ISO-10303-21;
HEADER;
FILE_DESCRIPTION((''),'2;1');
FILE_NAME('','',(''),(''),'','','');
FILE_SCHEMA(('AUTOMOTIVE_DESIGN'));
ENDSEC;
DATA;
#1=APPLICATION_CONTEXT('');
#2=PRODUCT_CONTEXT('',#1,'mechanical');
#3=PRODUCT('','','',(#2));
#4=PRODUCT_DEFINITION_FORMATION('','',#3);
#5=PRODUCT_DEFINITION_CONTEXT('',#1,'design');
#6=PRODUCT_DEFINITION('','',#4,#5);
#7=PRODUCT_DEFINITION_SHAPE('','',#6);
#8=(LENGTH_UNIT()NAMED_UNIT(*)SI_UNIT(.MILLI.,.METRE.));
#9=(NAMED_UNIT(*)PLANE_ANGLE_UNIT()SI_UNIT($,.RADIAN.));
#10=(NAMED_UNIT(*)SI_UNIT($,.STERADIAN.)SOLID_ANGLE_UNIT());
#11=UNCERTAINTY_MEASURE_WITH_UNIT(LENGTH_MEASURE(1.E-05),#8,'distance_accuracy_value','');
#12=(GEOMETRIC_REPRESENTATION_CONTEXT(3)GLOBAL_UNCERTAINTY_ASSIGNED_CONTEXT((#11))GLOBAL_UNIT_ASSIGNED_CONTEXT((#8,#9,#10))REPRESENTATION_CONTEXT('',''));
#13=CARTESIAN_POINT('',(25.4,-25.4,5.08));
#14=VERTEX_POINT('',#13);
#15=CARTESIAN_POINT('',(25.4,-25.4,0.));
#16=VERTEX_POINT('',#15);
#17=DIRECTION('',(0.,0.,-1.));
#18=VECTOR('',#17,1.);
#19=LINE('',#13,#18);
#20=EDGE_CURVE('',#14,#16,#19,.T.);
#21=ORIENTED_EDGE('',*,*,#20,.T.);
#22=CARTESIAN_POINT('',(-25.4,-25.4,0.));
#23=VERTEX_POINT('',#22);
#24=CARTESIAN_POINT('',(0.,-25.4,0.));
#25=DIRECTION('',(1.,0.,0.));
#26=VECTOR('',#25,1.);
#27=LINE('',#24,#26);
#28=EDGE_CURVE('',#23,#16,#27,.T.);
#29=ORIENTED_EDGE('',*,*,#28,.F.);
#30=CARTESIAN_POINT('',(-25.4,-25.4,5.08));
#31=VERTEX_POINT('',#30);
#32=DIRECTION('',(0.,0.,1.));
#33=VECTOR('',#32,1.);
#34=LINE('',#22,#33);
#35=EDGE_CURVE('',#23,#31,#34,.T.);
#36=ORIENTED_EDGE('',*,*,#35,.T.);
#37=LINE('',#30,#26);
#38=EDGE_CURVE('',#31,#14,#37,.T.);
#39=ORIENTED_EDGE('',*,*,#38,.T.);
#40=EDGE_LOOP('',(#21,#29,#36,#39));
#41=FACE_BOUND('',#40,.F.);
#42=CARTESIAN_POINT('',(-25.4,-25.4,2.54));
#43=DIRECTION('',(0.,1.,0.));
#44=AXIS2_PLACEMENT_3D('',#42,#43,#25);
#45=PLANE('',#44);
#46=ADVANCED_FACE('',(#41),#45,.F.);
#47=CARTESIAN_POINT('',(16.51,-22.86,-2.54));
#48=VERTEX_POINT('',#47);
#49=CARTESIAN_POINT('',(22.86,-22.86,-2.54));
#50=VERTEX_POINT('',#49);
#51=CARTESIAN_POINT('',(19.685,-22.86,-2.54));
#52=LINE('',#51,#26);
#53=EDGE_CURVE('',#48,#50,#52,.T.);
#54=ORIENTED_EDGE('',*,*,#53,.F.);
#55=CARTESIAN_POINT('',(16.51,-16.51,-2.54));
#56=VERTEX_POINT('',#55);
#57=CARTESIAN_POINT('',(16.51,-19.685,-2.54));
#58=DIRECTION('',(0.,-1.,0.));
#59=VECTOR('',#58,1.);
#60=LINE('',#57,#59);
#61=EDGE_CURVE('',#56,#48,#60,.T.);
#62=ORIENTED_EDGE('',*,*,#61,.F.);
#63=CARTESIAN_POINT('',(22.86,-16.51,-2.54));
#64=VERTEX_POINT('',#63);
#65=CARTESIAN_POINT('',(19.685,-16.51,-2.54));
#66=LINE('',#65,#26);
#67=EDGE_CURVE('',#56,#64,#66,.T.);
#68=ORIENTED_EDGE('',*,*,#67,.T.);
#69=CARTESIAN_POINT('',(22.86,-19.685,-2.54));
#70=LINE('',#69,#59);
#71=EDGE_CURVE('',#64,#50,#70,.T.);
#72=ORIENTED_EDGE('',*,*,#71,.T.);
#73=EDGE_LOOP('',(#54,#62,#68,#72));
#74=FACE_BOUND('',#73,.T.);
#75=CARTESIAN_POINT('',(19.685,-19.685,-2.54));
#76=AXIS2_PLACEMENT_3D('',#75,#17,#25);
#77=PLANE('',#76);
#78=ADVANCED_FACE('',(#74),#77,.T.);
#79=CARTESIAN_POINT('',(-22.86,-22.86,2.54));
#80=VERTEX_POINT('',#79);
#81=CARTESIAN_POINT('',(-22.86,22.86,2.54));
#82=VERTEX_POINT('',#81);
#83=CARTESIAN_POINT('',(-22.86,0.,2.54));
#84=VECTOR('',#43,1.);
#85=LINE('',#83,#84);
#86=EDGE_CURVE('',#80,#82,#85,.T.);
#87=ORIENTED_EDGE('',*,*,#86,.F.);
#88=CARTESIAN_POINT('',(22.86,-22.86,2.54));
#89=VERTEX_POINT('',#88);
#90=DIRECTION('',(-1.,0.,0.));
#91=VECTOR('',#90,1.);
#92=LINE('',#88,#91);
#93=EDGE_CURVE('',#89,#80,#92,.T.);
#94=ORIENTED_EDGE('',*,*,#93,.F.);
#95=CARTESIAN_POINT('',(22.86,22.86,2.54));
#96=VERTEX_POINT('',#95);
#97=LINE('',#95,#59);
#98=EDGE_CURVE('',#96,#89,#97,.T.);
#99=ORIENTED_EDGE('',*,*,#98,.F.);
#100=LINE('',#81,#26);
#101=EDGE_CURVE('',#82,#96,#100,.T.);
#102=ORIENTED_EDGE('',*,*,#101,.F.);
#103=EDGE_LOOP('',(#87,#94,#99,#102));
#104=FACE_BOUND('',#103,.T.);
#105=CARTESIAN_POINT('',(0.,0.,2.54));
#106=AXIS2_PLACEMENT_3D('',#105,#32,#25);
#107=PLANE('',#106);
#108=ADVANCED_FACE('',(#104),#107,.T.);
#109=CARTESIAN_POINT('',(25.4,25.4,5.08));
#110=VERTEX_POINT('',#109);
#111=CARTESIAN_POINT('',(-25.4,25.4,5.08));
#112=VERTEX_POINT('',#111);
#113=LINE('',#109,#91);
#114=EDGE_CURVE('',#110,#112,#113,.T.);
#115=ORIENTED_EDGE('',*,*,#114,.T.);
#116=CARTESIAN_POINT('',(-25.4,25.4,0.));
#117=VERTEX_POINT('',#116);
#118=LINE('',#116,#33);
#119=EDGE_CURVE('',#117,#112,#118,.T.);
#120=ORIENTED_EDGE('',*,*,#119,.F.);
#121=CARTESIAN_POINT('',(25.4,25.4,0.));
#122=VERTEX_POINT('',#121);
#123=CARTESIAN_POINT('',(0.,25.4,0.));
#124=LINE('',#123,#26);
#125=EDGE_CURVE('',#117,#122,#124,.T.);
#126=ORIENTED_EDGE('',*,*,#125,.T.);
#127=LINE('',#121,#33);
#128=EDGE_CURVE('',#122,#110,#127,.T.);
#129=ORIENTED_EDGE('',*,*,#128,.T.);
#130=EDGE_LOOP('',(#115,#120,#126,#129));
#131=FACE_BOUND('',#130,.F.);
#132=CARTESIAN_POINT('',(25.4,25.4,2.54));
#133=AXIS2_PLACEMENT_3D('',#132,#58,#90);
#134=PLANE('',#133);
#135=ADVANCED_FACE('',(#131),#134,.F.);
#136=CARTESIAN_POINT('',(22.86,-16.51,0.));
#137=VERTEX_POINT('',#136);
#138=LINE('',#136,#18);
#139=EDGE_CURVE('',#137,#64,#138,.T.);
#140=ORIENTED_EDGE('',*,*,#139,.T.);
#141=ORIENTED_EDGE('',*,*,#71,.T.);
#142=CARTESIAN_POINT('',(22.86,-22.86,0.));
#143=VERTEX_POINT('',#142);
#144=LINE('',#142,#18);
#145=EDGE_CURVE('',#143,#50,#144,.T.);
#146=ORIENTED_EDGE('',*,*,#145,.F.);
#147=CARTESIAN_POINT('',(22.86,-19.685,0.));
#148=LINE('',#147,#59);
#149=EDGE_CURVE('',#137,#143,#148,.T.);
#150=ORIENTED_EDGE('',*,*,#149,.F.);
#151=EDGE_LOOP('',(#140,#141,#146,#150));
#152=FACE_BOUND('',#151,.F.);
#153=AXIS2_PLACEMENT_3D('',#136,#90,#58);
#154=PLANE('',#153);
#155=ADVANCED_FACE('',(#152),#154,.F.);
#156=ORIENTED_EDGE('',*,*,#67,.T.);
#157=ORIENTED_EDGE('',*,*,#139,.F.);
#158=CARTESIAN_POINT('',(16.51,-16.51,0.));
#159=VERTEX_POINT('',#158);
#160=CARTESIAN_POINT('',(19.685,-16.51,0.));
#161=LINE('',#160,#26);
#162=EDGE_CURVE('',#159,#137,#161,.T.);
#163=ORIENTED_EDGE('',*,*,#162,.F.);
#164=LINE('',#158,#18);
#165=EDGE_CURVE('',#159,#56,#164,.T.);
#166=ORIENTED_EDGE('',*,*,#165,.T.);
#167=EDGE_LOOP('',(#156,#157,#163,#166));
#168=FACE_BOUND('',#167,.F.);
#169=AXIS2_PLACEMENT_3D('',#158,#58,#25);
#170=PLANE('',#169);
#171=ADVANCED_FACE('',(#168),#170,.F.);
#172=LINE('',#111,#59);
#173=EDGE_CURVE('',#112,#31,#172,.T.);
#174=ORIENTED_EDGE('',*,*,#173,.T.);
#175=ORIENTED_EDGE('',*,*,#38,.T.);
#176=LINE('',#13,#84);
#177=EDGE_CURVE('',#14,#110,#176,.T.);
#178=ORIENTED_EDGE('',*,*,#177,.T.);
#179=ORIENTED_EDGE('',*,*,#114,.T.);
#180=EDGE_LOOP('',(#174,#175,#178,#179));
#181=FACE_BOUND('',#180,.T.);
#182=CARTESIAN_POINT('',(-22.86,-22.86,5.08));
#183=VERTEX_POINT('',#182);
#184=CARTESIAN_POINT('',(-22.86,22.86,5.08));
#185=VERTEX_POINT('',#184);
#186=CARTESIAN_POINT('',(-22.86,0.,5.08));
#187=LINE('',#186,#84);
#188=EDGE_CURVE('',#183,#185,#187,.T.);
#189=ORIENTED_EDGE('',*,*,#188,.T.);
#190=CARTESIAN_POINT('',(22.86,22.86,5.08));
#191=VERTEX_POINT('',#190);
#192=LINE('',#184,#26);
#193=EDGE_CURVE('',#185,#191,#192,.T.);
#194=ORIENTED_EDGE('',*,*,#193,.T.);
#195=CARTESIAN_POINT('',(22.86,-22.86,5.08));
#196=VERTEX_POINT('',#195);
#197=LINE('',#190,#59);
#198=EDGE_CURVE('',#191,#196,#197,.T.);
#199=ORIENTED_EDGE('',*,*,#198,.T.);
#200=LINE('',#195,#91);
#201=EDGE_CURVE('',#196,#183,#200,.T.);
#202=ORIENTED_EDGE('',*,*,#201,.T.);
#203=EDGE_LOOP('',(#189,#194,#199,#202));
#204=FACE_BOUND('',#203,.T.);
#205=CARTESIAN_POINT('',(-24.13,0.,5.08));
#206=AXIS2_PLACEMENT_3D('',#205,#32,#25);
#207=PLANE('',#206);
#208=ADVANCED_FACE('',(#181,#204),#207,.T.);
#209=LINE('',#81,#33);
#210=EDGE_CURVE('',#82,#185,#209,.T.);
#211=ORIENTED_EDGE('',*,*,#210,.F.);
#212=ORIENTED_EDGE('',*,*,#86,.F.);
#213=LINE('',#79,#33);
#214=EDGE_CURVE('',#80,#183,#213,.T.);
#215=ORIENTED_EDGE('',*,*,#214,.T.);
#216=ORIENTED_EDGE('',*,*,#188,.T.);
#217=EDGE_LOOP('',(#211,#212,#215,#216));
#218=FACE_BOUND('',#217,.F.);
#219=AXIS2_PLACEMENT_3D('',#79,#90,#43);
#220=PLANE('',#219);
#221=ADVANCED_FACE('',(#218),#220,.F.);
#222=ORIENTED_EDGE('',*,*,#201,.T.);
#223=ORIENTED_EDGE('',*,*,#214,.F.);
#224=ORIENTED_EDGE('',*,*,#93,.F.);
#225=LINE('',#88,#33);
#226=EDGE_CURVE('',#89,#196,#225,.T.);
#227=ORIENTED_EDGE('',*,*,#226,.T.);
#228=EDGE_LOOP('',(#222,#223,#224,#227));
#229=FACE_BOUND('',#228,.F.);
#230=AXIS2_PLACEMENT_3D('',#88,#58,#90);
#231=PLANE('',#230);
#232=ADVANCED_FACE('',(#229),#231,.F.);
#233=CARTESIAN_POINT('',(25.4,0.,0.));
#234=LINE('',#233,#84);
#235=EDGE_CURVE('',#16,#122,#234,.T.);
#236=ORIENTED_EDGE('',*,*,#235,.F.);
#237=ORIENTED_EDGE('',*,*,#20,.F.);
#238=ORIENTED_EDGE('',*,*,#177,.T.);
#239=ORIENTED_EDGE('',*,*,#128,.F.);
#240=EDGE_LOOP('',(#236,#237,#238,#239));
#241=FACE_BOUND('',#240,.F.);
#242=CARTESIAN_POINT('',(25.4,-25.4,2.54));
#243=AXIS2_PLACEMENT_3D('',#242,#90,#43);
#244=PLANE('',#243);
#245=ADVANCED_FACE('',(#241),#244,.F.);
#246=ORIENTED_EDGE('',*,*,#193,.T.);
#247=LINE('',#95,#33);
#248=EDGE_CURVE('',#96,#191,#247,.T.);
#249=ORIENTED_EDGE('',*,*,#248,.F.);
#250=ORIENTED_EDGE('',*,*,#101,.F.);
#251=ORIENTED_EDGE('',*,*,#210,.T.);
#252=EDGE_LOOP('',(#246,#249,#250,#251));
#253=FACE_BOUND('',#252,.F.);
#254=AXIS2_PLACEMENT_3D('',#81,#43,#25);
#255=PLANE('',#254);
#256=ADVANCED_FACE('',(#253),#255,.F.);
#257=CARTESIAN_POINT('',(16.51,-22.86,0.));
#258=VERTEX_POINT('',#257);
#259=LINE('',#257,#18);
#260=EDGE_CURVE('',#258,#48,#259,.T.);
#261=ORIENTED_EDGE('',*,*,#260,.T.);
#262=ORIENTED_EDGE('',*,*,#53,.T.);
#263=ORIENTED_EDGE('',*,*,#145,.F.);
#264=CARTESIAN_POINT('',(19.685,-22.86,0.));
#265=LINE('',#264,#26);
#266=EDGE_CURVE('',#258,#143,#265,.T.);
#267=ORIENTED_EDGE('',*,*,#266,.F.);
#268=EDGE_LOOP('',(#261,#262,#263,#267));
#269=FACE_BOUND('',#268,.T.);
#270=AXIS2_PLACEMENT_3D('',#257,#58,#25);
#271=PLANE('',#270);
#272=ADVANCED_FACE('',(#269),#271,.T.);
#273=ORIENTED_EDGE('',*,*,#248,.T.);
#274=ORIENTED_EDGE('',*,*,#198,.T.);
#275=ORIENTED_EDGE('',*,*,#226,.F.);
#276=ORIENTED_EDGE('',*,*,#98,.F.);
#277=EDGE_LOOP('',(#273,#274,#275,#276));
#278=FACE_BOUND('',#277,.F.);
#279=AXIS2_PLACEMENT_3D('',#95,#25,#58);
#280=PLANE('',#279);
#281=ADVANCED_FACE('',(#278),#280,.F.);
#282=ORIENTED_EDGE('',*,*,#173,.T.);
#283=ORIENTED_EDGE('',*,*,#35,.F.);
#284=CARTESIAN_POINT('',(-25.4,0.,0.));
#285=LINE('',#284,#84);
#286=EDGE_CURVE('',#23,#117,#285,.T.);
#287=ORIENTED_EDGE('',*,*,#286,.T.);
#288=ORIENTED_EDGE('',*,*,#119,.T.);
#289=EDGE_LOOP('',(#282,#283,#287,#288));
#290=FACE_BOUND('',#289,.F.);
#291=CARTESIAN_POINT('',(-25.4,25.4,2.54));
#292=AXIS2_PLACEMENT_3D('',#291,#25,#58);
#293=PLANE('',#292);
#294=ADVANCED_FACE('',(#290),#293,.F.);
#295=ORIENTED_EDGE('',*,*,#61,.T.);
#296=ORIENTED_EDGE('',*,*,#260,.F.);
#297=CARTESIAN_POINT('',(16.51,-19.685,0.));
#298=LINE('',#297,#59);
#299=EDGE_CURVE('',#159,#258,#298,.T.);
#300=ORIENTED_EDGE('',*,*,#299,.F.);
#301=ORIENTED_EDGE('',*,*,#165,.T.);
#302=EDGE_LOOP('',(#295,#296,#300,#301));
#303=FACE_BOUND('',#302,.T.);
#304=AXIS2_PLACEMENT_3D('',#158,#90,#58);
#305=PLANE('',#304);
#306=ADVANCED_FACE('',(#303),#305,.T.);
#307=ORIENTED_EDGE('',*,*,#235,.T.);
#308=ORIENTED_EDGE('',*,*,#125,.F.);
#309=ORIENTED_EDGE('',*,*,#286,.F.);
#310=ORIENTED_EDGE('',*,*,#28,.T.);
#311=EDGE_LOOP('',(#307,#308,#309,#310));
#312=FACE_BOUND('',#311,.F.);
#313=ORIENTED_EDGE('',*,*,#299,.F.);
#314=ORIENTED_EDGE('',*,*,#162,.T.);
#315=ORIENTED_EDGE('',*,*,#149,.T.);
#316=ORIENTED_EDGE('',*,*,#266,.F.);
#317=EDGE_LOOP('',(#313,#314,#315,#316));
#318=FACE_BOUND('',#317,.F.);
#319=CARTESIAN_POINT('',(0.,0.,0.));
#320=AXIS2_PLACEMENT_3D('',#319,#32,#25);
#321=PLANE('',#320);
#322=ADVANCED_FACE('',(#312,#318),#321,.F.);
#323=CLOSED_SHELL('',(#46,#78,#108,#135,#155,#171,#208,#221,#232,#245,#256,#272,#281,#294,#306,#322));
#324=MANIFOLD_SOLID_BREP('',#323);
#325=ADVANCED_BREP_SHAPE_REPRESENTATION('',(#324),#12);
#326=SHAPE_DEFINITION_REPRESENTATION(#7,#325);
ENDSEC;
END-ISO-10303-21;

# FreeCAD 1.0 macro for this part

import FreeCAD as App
import Part
import Sketcher

V = App.Vector
Q = App.Units.Quantity

doc = App.newDocument("Part")
params = doc.addObject("Spreadsheet::Sheet", "Params")
for row, (alias, value) in enumerate([
    ("sketch1_width", "2 in"),
    ("pad1_length", "0.1 in"),
    ("sketch2_width", "2 in"),
    ("sketch2_width2", "1.8 in"),
    ("pad2_length", "0.1 in"),
    ("sketch3_width", "0.25 in"),
    ("pad3_length", "0.1 in"),
], start=1):
    params.set(f"A{row}", alias)
    params.set(f"B{row}", "=" + value)
    params.setAlias(f"B{row}", alias)

body = doc.addObject("PartDesign::Body", "Body")

sketch1 = body.newObject("Sketcher::SketchObject", "Sketch")
sketch1.AttachmentSupport = (doc.getObject("XY_Plane"), [""])
sketch1.MapMode = "FlatFace"
sketch1.addGeometry(Part.LineSegment(V(-25.4, 25.4, 0), V(-25.4, -25.4, 0)), False)
sketch1.addGeometry(Part.LineSegment(V(-25.4, -25.4, 0), V(25.4, -25.4, 0)), False)
sketch1.addGeometry(Part.LineSegment(V(25.4, -25.4, 0), V(25.4, 25.4, 0)), False)
sketch1.addGeometry(Part.LineSegment(V(25.4, 25.4, 0), V(-25.4, 25.4, 0)), False)
sketch1.addConstraint(Sketcher.Constraint("Coincident", 0, 2, 1, 1))
sketch1.addConstraint(Sketcher.Constraint("Coincident", 1, 2, 2, 1))
sketch1.addConstraint(Sketcher.Constraint("Coincident", 2, 2, 3, 1))
sketch1.addConstraint(Sketcher.Constraint("Coincident", 3, 2, 0, 1))
sketch1.addConstraint(Sketcher.Constraint("Vertical", 0))
sketch1.addConstraint(Sketcher.Constraint("Horizontal", 1))
sketch1.addConstraint(Sketcher.Constraint("Vertical", 2))
sketch1.addConstraint(Sketcher.Constraint("Horizontal", 3))
sketch1.addConstraint(Sketcher.Constraint("Symmetric", 0, 2, 2, 2, -1, 1))
sketch1.addConstraint(Sketcher.Constraint("Equal", 3, 0))
sketch1.addConstraint(Sketcher.Constraint("DistanceX", 1, 1, 1, 2, Q("2 in")))
sketch1.setExpression("Constraints[10]", "Params.sketch1_width")
pad1 = body.newObject("PartDesign::Pad", "Pad")
pad1.Profile = sketch1
pad1.setExpression("Length", "Params.pad1_length")

sketch2 = body.newObject("Sketcher::SketchObject", "Sketch001")
sketch2.AttachmentSupport = (doc.getObject("XY_Plane"), [""])
sketch2.MapMode = "FlatFace"
sketch2.AttachmentOffset = App.Placement(V(0, 0, 0.1 * 25.4), App.Rotation())
sketch2.addGeometry(Part.LineSegment(V(25.4, -25.4, 0), V(25.4, 25.4, 0)), False)
sketch2.addGeometry(Part.LineSegment(V(25.4, 25.4, 0), V(-25.4, 25.4, 0)), False)
sketch2.addGeometry(Part.LineSegment(V(-25.4, 25.4, 0), V(-25.4, -25.4, 0)), False)
sketch2.addGeometry(Part.LineSegment(V(-25.4, -25.4, 0), V(25.4, -25.4, 0)), False)
sketch2.addGeometry(Part.LineSegment(V(-22.86, -22.86, 0), V(-22.86, 22.86, 0)), False)
sketch2.addGeometry(Part.LineSegment(V(-22.86, 22.86, 0), V(22.86, 22.86, 0)), False)
sketch2.addGeometry(Part.LineSegment(V(22.86, 22.86, 0), V(22.86, -22.86, 0)), False)
sketch2.addGeometry(Part.LineSegment(V(22.86, -22.86, 0), V(-22.86, -22.86, 0)), False)
sketch2.addConstraint(Sketcher.Constraint("Coincident", 0, 2, 1, 1))
sketch2.addConstraint(Sketcher.Constraint("Coincident", 1, 2, 2, 1))
sketch2.addConstraint(Sketcher.Constraint("Coincident", 2, 2, 3, 1))
sketch2.addConstraint(Sketcher.Constraint("Coincident", 3, 2, 0, 1))
sketch2.addConstraint(Sketcher.Constraint("Coincident", 4, 2, 5, 1))
sketch2.addConstraint(Sketcher.Constraint("Coincident", 5, 2, 6, 1))
sketch2.addConstraint(Sketcher.Constraint("Coincident", 6, 2, 7, 1))
sketch2.addConstraint(Sketcher.Constraint("Coincident", 7, 2, 4, 1))
sketch2.addConstraint(Sketcher.Constraint("Vertical", 0))
sketch2.addConstraint(Sketcher.Constraint("Horizontal", 1))
sketch2.addConstraint(Sketcher.Constraint("Vertical", 2))
sketch2.addConstraint(Sketcher.Constraint("Horizontal", 3))
sketch2.addConstraint(Sketcher.Constraint("Vertical", 4))
sketch2.addConstraint(Sketcher.Constraint("Horizontal", 5))
sketch2.addConstraint(Sketcher.Constraint("Vertical", 6))
sketch2.addConstraint(Sketcher.Constraint("Horizontal", 7))
sketch2.addConstraint(Sketcher.Constraint("Symmetric", 0, 2, 2, 2, -1, 1))
sketch2.addConstraint(Sketcher.Constraint("Symmetric", 4, 2, 6, 2, -1, 1))
sketch2.addConstraint(Sketcher.Constraint("Equal", 3, 0))
sketch2.addConstraint(Sketcher.Constraint("Equal", 7, 4))
sketch2.addConstraint(Sketcher.Constraint("DistanceX", 1, 2, 1, 1, Q("2 in")))
sketch2.addConstraint(Sketcher.Constraint("DistanceX", 5, 1, 5, 2, Q("1.8 in")))
sketch2.setExpression("Constraints[20]", "Params.sketch2_width")
sketch2.setExpression("Constraints[21]", "Params.sketch2_width2")
pad2 = body.newObject("PartDesign::Pad", "Pad001")
pad2.Profile = sketch2
pad2.setExpression("Length", "Params.pad2_length")

sketch3 = body.newObject("Sketcher::SketchObject", "Sketch002")
sketch3.AttachmentSupport = (doc.getObject("XY_Plane"), [""])
sketch3.MapMode = "FlatFace"
sketch3.addGeometry(Part.LineSegment(V(16.51, -22.86, 0), V(16.51, -16.51, 0)), False)
sketch3.addGeometry(Part.LineSegment(V(16.51, -16.51, 0), V(22.86, -16.51, 0)), False)
sketch3.addGeometry(Part.LineSegment(V(22.86, -16.51, 0), V(22.86, -22.86, 0)), False)
sketch3.addGeometry(Part.LineSegment(V(22.86, -22.86, 0), V(16.51, -22.86, 0)), False)
sketch3.addConstraint(Sketcher.Constraint("Coincident", 0, 2, 1, 1))
sketch3.addConstraint(Sketcher.Constraint("Coincident", 1, 2, 2, 1))
sketch3.addConstraint(Sketcher.Constraint("Coincident", 2, 2, 3, 1))
sketch3.addConstraint(Sketcher.Constraint("Coincident", 3, 2, 0, 1))
sketch3.addConstraint(Sketcher.Constraint("Vertical", 0))
sketch3.addConstraint(Sketcher.Constraint("Horizontal", 1))
sketch3.addConstraint(Sketcher.Constraint("Vertical", 2))
sketch3.addConstraint(Sketcher.Constraint("Horizontal", 3))
sketch3.addConstraint(Sketcher.Constraint("Equal", 3, 0))
sketch3.addConstraint(Sketcher.Constraint("DistanceX", 1, 1, 1, 2, Q("0.25 in")))
sketch3.addConstraint(Sketcher.Constraint("DistanceX", -1, 1, 1, 2, Q("0.9 in")))
sketch3.addConstraint(Sketcher.Constraint("DistanceY", 2, 2, -1, 1, Q("0.9 in")))
sketch3.setExpression("Constraints[9]", "Params.sketch3_width")
pad3 = body.newObject("PartDesign::Pad", "Pad002")
pad3.Profile = sketch3
pad3.setExpression("Length", "Params.pad3_length")
pad3.Reversed = True

doc.recompute()
